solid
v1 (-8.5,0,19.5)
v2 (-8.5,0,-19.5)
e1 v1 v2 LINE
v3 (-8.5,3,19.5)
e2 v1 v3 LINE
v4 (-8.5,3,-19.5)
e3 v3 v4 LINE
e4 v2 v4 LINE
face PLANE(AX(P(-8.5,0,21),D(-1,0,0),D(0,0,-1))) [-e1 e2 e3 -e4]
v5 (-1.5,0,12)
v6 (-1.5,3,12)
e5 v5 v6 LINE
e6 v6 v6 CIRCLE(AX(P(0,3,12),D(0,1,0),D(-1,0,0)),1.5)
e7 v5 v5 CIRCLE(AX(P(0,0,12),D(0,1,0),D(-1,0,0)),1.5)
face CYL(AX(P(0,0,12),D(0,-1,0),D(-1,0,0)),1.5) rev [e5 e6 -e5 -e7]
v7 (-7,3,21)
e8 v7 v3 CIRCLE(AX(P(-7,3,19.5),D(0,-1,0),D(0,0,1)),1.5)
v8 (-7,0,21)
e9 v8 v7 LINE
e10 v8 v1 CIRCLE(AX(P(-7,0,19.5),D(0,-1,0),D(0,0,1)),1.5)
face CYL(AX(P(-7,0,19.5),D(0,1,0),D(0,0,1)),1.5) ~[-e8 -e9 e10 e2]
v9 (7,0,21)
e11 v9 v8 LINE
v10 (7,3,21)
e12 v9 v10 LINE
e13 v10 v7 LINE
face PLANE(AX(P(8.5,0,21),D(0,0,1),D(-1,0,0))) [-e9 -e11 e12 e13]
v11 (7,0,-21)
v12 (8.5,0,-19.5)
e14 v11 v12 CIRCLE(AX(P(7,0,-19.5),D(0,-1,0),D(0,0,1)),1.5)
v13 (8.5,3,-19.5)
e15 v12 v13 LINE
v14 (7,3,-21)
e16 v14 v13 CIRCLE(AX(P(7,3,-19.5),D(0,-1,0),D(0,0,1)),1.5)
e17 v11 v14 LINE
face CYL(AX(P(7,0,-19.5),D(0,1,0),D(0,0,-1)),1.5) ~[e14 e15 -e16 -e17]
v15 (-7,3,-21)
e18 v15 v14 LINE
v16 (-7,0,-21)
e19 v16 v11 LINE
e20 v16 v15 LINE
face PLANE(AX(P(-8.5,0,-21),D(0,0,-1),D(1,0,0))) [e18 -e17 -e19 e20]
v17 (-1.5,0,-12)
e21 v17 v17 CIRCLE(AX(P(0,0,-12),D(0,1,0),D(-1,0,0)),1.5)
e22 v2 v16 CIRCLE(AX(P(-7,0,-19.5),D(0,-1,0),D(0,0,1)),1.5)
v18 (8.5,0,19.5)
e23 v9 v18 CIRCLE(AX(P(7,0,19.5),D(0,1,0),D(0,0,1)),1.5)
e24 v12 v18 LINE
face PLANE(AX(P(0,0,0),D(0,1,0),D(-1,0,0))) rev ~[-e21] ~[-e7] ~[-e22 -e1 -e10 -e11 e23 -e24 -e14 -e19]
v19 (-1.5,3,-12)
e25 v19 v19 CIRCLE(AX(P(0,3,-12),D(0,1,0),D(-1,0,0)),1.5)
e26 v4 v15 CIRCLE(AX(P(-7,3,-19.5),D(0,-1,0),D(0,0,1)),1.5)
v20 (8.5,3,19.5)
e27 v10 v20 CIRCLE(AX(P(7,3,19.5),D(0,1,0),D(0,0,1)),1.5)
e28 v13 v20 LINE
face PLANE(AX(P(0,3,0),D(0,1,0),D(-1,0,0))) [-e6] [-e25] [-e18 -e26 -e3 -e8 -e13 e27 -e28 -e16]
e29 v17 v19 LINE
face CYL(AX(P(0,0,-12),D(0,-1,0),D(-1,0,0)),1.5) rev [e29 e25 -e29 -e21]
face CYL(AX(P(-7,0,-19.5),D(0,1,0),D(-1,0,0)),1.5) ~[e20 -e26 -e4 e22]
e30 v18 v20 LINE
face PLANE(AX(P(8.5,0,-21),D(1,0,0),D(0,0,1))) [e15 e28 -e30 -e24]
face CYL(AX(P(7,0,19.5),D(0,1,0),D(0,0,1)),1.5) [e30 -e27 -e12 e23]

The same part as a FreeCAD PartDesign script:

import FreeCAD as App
import Part
import Sketcher

V = App.Vector
Q = App.Units.Quantity


def edges_at(feature, points):
    """Names of the edges that pass closest to the given points."""
    edges = feature.Shape.Edges
    near = lambda p: min(range(len(edges)), key=lambda i: edges[i].distToShape(Part.Vertex(*p))[0])
    return sorted({f"Edge{near(p) + 1}" for p in points})


def add_polygon(sketch, points):
    """Adds a closed chain of lines whose ends are joined by coincident constraints."""
    first, n = sketch.GeometryCount, len(points)
    for a, b in zip(points, points[1:] + points[:1]):
        sketch.addGeometry(Part.LineSegment(App.Vector(*a, 0), App.Vector(*b, 0)), False)
    for i in range(n):
        sketch.addConstraint(Sketcher.Constraint("Coincident", first + i, 2, first + (i + 1) % n, 1))

doc = App.newDocument("Part")
body = doc.addObject("PartDesign::Body", "Body")

# Sketch on XZ plane
sketch1 = body.newObject("Sketcher::SketchObject", "Sketch")
sketch1.AttachmentSupport = (doc.getObject("XZ_Plane"), [""])
sketch1.MapMode = "FlatFace"
add_polygon(sketch1, [(-8.5, 21), (8.5, 21), (8.5, -21), (-8.5, -21)])  # lines 0-3
sketch1.addGeometry(Part.Circle(V(0, -12, 0), V(0, 0, 1), 1.5), False)  # 4
sketch1.addGeometry(Part.Circle(V(0, 12, 0), V(0, 0, 1), 1.5), False)  # 5
sketch1.addConstraint([
    Sketcher.Constraint("Horizontal", 0),
    Sketcher.Constraint("Vertical", 1),
    Sketcher.Constraint("Horizontal", 2),
    Sketcher.Constraint("Vertical", 3),
    Sketcher.Constraint("Equal", 4, 5),
    Sketcher.Constraint("Symmetric", 4, 3, 5, 3, -1, 1),
    Sketcher.Constraint("Symmetric", 0, 2, 2, 2, -1, 1),
    Sketcher.Constraint("PointOnObject", 4, 3, -2),
    Sketcher.Constraint("Diameter", 4, Q("3 mm")),
    Sketcher.Constraint("DistanceY", 4, 3, -1, 1, Q("12 mm")),
    Sketcher.Constraint("DistanceX", 0, 1, 0, 2, Q("17 mm")),
    Sketcher.Constraint("DistanceY", 1, 2, 1, 1, Q("42 mm")),
])
pad1 = body.newObject("PartDesign::Pad", "Pad")
pad1.Profile = sketch1
pad1.Length = 3
pad1.Reversed = True
doc.recompute()

fillet = body.newObject("PartDesign::Fillet", "Fillet")
fillet.Base = (pad1, edges_at(pad1, [
    (8.5, 1.5, 21),
    (8.5, 1.5, -21),
    (-8.5, 1.5, 21),
    (-8.5, 1.5, -21),
]))
fillet.Radius = 1.5

doc.recompute()
